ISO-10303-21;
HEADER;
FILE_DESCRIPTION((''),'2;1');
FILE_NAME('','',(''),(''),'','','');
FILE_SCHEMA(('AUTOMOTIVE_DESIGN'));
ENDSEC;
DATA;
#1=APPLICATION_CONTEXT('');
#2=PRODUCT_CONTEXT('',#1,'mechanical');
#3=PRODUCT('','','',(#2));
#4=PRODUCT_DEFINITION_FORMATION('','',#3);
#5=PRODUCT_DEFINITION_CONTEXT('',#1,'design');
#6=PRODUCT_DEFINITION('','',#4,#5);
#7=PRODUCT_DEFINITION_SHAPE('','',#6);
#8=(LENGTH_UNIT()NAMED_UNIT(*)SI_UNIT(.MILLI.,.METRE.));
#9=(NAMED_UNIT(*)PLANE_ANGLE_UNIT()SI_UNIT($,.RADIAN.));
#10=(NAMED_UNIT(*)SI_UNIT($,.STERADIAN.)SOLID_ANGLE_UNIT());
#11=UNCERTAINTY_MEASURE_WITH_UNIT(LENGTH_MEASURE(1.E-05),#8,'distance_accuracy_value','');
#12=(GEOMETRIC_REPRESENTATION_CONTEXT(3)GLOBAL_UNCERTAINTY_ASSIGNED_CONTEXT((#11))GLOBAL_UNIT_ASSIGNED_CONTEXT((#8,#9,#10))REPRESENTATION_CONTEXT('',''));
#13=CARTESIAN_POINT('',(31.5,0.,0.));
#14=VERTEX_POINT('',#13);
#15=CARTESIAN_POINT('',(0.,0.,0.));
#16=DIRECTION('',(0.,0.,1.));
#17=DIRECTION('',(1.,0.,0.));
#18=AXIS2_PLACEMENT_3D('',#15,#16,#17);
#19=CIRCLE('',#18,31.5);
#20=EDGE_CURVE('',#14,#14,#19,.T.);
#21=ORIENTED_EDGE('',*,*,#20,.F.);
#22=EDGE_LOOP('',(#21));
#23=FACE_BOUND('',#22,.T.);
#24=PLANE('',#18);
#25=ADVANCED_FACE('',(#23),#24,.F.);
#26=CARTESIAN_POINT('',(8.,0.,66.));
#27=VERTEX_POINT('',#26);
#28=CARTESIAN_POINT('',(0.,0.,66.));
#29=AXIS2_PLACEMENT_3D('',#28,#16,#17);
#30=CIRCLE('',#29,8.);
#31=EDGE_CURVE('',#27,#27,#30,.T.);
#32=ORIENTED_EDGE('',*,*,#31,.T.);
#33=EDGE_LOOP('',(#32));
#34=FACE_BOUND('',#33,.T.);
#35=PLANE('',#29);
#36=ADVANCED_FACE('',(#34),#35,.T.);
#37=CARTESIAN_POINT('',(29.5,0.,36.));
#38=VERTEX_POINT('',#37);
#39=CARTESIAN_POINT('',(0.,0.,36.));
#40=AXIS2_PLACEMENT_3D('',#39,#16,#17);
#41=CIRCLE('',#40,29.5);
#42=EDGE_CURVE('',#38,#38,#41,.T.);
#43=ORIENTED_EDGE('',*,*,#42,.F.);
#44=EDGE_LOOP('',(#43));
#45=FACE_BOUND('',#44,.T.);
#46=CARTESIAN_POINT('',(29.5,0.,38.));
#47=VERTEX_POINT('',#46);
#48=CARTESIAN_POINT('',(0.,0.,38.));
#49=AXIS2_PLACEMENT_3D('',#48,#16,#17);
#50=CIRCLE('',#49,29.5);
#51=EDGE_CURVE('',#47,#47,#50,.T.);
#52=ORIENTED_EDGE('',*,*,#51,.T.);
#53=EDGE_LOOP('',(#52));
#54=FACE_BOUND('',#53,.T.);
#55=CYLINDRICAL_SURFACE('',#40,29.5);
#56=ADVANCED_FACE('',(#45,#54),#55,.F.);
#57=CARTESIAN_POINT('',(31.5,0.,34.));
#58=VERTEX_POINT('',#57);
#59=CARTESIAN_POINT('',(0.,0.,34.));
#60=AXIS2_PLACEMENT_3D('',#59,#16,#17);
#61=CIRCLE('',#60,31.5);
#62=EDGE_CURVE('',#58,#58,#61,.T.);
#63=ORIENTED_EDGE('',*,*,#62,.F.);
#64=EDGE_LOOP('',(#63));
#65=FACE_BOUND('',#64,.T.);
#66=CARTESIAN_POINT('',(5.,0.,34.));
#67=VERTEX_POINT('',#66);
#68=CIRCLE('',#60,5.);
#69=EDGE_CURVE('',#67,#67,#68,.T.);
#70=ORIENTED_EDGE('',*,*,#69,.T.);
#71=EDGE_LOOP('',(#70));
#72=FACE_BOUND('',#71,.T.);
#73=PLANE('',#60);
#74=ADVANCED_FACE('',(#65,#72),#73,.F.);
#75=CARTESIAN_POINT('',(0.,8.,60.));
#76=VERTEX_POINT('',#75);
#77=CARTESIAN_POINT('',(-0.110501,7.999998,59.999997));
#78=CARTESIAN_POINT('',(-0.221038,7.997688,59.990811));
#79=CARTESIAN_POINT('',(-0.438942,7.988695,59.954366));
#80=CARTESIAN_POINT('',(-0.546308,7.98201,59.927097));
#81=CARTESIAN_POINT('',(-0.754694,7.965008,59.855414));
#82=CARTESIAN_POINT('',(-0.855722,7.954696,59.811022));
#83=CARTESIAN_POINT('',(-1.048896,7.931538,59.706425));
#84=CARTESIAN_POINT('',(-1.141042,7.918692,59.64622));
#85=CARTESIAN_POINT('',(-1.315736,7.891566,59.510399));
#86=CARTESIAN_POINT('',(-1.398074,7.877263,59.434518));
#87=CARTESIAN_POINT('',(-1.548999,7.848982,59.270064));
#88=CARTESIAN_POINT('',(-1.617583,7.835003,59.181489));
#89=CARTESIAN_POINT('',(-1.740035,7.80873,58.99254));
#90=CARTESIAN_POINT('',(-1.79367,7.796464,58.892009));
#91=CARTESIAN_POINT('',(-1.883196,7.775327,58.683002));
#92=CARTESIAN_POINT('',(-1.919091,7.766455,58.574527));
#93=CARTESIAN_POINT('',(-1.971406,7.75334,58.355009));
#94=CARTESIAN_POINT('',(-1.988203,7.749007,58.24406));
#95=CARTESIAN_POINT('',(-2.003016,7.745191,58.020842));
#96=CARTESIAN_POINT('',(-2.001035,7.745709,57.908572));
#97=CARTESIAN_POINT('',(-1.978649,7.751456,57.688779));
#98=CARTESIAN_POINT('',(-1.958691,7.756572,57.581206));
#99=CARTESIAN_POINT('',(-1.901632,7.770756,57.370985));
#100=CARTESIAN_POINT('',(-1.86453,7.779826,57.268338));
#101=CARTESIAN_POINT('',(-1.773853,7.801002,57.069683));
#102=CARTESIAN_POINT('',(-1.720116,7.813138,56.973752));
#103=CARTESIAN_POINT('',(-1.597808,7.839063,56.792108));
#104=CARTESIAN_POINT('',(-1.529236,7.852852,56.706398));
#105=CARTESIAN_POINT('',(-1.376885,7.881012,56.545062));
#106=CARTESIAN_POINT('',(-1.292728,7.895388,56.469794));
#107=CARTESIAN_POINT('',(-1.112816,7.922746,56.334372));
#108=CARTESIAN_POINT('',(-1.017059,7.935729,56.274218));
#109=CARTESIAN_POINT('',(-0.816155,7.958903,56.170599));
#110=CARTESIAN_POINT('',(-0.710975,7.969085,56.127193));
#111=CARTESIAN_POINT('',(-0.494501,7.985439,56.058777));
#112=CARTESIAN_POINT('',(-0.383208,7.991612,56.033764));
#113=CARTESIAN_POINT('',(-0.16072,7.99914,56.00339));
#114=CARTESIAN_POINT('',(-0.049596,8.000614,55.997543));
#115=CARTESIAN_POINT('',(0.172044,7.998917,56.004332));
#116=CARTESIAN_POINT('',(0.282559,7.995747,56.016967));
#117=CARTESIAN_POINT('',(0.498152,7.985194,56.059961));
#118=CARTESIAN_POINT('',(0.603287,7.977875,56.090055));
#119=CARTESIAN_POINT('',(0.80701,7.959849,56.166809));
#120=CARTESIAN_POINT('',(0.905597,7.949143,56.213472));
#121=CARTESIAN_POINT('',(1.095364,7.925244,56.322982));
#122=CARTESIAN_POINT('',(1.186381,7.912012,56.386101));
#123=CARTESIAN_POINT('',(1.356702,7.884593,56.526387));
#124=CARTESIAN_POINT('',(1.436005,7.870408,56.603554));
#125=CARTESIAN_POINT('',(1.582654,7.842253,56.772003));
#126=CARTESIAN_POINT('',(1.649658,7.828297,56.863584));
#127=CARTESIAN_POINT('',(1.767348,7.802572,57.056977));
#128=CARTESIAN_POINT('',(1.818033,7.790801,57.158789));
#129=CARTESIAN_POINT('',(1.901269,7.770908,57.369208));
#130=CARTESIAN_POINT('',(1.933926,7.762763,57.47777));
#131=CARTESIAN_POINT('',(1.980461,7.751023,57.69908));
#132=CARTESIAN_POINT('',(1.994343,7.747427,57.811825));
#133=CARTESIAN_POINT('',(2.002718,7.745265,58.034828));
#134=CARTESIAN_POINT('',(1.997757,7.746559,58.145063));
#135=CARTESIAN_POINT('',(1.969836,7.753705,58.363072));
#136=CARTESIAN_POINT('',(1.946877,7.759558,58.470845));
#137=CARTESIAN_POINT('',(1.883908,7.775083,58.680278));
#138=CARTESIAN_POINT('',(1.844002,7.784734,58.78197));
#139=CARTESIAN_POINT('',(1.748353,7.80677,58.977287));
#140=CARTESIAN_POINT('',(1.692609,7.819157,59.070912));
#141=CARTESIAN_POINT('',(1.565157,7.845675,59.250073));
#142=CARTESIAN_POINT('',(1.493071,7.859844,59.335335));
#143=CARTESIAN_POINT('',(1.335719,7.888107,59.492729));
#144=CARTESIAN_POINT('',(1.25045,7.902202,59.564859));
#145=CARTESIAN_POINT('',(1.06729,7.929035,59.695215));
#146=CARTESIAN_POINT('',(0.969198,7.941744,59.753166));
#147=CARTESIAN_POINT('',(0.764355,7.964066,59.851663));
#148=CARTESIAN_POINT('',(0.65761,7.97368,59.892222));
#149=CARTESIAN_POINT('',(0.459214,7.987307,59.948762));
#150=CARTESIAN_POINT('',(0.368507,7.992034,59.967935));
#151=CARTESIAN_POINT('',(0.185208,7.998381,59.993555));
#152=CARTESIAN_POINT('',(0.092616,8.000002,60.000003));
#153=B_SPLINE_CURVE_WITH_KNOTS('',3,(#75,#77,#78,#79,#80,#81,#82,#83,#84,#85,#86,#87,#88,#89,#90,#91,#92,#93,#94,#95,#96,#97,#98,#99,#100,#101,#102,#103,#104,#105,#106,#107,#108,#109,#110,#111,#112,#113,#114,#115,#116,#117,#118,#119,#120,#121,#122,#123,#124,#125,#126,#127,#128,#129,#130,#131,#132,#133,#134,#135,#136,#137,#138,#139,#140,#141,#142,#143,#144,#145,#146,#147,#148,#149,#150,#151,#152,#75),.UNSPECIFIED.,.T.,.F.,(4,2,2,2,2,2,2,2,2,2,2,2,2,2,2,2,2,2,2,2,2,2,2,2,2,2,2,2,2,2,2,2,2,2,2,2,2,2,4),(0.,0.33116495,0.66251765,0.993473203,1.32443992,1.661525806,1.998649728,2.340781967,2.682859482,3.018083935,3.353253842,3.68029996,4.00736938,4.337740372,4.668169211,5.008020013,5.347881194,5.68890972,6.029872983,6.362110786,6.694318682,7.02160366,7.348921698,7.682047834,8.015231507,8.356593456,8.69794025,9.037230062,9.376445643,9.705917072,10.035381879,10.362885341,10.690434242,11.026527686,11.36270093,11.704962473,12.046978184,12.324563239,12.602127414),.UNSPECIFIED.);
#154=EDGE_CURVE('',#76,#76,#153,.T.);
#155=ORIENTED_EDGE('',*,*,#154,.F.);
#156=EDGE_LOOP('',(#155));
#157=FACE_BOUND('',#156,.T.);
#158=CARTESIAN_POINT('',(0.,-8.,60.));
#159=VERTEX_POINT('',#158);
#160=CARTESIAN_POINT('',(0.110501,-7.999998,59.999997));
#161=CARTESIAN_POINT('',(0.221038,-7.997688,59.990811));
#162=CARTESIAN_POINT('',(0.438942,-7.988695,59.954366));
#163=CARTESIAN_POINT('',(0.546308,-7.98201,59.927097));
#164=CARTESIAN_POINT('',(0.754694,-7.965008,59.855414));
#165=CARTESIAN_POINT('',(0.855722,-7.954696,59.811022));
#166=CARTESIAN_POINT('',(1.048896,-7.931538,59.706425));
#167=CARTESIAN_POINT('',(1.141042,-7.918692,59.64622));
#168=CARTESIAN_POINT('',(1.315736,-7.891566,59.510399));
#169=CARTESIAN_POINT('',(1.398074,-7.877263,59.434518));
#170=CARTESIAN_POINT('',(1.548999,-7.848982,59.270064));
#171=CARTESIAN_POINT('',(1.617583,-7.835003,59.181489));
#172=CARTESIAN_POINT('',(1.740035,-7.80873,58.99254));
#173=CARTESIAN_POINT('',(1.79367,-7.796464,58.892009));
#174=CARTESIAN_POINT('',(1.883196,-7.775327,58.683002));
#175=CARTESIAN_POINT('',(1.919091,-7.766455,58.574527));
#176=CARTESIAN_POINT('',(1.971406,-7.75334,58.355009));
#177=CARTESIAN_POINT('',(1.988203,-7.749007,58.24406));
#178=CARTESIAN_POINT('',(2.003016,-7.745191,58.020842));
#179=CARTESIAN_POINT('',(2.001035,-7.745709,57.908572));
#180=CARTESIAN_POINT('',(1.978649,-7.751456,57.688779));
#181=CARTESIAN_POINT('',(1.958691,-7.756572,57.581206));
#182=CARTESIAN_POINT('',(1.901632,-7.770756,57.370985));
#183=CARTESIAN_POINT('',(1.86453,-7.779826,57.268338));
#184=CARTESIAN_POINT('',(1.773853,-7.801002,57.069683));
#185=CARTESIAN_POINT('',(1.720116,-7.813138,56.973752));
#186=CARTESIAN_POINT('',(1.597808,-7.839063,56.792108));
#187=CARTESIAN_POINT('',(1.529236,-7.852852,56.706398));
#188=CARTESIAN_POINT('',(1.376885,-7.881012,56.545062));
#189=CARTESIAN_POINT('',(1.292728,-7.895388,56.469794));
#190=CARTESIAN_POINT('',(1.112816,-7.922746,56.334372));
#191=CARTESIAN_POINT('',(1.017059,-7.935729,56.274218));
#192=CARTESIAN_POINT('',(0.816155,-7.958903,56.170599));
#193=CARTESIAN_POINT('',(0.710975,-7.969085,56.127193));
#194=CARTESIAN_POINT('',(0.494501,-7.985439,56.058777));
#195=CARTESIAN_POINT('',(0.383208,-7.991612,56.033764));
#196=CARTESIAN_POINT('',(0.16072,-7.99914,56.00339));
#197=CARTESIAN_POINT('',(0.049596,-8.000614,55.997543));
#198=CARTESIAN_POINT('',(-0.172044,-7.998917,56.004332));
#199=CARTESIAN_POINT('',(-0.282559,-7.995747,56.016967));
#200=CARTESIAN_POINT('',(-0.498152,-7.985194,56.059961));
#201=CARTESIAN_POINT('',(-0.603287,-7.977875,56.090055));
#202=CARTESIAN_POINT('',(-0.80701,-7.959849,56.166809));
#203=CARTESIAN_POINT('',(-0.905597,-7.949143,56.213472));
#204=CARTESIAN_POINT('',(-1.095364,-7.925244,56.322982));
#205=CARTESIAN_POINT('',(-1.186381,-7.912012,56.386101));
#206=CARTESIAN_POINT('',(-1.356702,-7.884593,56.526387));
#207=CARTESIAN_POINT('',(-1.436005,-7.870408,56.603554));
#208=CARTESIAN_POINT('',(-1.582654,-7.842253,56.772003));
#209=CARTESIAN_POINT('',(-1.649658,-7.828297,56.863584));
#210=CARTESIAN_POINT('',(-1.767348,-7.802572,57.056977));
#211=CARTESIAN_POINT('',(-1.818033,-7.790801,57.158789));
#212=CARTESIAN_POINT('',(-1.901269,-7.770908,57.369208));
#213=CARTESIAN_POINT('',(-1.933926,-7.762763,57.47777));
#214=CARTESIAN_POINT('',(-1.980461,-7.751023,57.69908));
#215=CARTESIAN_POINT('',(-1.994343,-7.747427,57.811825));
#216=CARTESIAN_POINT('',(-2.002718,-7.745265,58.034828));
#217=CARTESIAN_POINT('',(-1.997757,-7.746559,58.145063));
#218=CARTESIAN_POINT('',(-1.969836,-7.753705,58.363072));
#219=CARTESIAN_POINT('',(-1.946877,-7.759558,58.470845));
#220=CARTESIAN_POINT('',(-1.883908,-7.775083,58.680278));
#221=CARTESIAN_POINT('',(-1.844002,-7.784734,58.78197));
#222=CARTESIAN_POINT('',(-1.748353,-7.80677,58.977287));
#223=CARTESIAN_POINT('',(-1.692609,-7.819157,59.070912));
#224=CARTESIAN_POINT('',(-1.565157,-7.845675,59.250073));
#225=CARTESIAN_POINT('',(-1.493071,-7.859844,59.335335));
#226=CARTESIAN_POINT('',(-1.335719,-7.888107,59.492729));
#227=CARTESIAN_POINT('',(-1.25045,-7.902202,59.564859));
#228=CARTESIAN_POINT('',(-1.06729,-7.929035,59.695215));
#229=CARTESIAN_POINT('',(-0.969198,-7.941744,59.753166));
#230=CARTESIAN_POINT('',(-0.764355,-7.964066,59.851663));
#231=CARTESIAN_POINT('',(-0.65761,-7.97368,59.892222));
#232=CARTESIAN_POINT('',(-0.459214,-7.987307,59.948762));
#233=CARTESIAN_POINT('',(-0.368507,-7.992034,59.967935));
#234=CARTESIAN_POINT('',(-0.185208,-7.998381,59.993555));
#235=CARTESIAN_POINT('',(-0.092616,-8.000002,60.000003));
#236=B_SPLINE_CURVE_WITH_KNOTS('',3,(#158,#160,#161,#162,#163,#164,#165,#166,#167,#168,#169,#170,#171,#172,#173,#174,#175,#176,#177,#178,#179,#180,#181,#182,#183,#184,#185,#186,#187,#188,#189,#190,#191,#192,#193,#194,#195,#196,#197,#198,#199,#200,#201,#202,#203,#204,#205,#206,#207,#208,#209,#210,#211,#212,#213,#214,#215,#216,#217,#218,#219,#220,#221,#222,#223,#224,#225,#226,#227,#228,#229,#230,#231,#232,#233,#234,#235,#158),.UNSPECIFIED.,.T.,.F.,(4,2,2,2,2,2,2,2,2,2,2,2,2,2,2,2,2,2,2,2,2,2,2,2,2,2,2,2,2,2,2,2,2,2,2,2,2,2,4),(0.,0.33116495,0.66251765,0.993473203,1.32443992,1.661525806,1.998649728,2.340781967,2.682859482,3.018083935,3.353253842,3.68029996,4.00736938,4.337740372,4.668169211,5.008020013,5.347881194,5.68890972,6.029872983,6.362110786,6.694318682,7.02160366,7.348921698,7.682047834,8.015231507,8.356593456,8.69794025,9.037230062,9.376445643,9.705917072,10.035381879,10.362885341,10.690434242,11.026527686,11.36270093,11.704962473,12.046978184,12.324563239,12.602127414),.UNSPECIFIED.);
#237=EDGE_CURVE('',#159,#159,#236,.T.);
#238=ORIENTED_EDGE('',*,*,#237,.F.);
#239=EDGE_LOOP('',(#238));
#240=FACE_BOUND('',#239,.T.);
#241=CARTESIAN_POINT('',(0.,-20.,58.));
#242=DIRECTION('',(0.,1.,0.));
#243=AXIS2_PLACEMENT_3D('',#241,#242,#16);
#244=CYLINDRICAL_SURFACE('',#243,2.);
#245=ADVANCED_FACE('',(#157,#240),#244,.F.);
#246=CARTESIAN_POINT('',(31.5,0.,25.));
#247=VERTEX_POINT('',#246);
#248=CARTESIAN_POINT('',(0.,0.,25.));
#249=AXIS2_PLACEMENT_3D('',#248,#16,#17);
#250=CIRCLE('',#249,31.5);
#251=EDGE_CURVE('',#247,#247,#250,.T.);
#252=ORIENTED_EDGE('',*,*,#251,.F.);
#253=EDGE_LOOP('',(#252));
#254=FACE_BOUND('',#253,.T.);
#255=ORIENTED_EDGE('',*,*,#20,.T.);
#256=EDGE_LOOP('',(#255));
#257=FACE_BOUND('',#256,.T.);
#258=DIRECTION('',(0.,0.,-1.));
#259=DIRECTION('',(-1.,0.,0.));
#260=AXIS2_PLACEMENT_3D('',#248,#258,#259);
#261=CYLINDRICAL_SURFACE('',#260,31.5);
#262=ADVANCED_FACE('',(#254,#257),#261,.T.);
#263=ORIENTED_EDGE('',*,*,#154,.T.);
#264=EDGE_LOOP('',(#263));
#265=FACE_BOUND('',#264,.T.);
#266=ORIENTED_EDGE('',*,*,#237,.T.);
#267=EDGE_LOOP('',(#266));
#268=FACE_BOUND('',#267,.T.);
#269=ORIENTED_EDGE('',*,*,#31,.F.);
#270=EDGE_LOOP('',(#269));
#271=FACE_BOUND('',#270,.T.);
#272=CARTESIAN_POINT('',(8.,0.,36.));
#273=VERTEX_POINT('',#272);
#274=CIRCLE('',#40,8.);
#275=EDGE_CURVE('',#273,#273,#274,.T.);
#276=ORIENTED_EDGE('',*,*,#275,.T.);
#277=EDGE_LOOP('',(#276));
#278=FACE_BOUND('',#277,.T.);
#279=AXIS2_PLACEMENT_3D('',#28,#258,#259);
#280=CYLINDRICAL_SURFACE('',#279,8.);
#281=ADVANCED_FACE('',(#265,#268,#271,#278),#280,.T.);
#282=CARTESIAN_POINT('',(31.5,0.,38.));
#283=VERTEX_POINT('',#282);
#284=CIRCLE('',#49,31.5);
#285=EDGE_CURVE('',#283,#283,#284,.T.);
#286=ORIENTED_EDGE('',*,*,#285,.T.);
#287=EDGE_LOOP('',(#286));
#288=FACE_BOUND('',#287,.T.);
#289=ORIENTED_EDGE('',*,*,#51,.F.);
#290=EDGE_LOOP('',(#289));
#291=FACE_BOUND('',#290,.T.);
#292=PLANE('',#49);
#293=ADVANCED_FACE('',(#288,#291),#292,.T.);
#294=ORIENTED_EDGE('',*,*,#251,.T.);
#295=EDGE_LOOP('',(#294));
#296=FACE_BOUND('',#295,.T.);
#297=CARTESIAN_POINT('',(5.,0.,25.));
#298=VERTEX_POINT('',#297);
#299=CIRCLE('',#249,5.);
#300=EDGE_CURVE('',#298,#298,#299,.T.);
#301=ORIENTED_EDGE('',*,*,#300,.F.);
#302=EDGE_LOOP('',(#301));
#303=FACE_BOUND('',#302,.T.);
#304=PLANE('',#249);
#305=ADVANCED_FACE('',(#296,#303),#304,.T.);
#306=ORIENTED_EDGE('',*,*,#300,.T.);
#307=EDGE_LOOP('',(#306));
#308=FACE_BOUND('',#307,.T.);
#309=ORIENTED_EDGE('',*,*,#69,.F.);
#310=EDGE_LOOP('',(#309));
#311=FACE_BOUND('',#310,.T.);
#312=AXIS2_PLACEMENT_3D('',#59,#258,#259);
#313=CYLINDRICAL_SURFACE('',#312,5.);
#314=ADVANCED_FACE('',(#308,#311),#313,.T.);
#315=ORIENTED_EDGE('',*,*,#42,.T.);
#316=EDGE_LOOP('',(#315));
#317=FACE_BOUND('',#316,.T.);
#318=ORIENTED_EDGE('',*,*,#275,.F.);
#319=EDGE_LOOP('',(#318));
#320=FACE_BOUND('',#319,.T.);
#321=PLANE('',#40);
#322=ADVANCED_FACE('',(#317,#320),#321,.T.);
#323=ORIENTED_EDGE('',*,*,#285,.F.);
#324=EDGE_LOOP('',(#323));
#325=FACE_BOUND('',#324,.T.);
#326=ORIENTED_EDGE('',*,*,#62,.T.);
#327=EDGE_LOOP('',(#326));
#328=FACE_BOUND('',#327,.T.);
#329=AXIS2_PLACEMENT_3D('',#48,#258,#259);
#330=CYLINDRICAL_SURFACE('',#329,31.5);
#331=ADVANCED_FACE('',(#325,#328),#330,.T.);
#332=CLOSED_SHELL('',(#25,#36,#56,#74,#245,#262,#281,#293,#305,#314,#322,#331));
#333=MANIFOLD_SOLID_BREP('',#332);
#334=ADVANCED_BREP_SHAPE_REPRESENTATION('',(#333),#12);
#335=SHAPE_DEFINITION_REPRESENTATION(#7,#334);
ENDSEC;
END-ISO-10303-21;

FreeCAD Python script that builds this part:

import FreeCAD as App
import Part
import Sketcher

V = App.Vector

doc = App.newDocument("Part")
body = doc.addObject("PartDesign::Body", "Body")

# Sketch on XY plane
sketch1 = doc.addObject("Sketcher::SketchObject", "Sketch")
body.addObject(sketch1)
sketch1.AttachmentSupport = (doc.XY_Plane, [""])
sketch1.MapMode = "FlatFace"
sketch1.addGeometry(Part.Circle(V(0, 0, 0), V(0, 0, 1), 32), False)
sketch1.addConstraint(Sketcher.Constraint("Coincident", 0, 3, -1, 1))
sketch1.addConstraint(Sketcher.Constraint("Diameter", 0, 63.0))
pad1 = doc.addObject("PartDesign::Pad", "Pad")
body.addObject(pad1)
pad1.Profile = sketch1
pad1.Length = 25

# Sketch on XY plane
sketch2 = doc.addObject("Sketcher::SketchObject", "Sketch001")
body.addObject(sketch2)
sketch2.AttachmentSupport = (doc.XY_Plane, [""])
sketch2.MapMode = "FlatFace"
sketch2.AttachmentOffset = App.Placement(V(0, 0, 25), App.Rotation())
sketch2.addGeometry(Part.Circle(V(0, 0, 0), V(0, 0, 1), 5), False)
sketch2.addConstraint(Sketcher.Constraint("Coincident", 0, 3, -1, 1))
sketch2.addConstraint(Sketcher.Constraint("Diameter", 0, 10.0))
pad2 = doc.addObject("PartDesign::Pad", "Pad001")
body.addObject(pad2)
pad2.Profile = sketch2
pad2.Length = 9

# Sketch on XY plane
sketch3 = doc.addObject("Sketcher::SketchObject", "Sketch002")
body.addObject(sketch3)
sketch3.AttachmentSupport = (doc.XY_Plane, [""])
sketch3.MapMode = "FlatFace"
sketch3.AttachmentOffset = App.Placement(V(0, 0, 34), App.Rotation())
sketch3.addGeometry(Part.Circle(V(0, 0, 0), V(0, 0, 1), 32), False)
sketch3.addConstraint(Sketcher.Constraint("Coincident", 0, 3, -1, 1))
sketch3.addConstraint(Sketcher.Constraint("Diameter", 0, 63.0))
pad3 = doc.addObject("PartDesign::Pad", "Pad002")
body.addObject(pad3)
pad3.Profile = sketch3
pad3.Length = 4

# Sketch on XY plane
sketch4 = doc.addObject("Sketcher::SketchObject", "Sketch003")
body.addObject(sketch4)
sketch4.AttachmentSupport = (doc.XY_Plane, [""])
sketch4.MapMode = "FlatFace"
sketch4.AttachmentOffset = App.Placement(V(0, 0, 38), App.Rotation())
sketch4.addGeometry(Part.Circle(V(0, 0, 0), V(0, 0, 1), 30), False)
sketch4.addConstraint(Sketcher.Constraint("Coincident", 0, 3, -1, 1))
sketch4.addConstraint(Sketcher.Constraint("Diameter", 0, 59.0))
pocket1 = doc.addObject("PartDesign::Pocket", "Pocket")
body.addObject(pocket1)
pocket1.Profile = sketch4
pocket1.Length = 2

# Sketch on XY plane
sketch5 = doc.addObject("Sketcher::SketchObject", "Sketch004")
body.addObject(sketch5)
sketch5.AttachmentSupport = (doc.XY_Plane, [""])
sketch5.MapMode = "FlatFace"
sketch5.AttachmentOffset = App.Placement(V(0, 0, 36), App.Rotation())
sketch5.addGeometry(Part.Circle(V(0, 0, 0), V(0, 0, 1), 8), False)
sketch5.addConstraint(Sketcher.Constraint("Coincident", 0, 3, -1, 1))
sketch5.addConstraint(Sketcher.Constraint("Diameter", 0, 16.0))
pad4 = doc.addObject("PartDesign::Pad", "Pad003")
body.addObject(pad4)
pad4.Profile = sketch5
pad4.Length = 30

# Sketch on XZ plane
sketch6 = doc.addObject("Sketcher::SketchObject", "Sketch005")
body.addObject(sketch6)
sketch6.AttachmentSupport = (doc.XZ_Plane, [""])
sketch6.MapMode = "FlatFace"
sketch6.addGeometry(Part.Circle(V(0, 58, 0), V(0, 0, 1), 2), False)
sketch6.addConstraint(Sketcher.Constraint("PointOnObject", 0, 3, -2))
sketch6.addConstraint(Sketcher.Constraint("Diameter", 0, 4.0))
sketch6.addConstraint(Sketcher.Constraint("DistanceY", -1, 1, 0, 3, 58.0))
pocket2 = doc.addObject("PartDesign::Pocket", "Pocket001")
body.addObject(pocket2)
pocket2.Profile = sketch6
pocket2.Length = 40
pocket2.Midplane = True

doc.recompute()
